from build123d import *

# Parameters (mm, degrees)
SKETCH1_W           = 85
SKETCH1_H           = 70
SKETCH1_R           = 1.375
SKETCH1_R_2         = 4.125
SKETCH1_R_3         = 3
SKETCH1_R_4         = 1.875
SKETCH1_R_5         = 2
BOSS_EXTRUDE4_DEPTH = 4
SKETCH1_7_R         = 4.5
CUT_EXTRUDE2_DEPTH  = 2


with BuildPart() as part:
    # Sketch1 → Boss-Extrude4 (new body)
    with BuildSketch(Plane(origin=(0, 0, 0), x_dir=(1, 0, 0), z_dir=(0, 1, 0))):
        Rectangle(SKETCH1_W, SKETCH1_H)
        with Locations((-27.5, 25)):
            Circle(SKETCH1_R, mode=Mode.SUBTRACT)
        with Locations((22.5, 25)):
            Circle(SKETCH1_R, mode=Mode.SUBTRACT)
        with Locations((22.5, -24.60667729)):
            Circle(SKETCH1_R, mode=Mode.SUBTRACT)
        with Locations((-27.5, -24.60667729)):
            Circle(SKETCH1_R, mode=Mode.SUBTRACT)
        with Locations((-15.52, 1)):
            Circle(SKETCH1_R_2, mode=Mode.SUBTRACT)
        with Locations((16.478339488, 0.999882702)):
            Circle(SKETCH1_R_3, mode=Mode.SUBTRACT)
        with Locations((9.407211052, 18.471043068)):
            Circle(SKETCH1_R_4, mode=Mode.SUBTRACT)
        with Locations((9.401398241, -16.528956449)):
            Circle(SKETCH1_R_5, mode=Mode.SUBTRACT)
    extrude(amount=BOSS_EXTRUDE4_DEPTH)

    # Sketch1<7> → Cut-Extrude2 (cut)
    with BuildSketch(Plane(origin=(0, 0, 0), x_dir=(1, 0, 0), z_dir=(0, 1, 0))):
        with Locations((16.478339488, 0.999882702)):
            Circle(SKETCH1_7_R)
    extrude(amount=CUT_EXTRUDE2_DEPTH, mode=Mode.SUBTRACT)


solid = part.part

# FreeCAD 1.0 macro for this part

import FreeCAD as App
import Part
import Sketcher
Q = App.Units.Quantity


def add_polygon(sketch, points):
    """Adds a closed chain of lines whose ends are joined by coincident constraints."""
    first, n = sketch.GeometryCount, len(points)
    for a, b in zip(points, points[1:] + points[:1]):
        sketch.addGeometry(Part.LineSegment(App.Vector(*a, 0), App.Vector(*b, 0)), False)
    for i in range(n):
        sketch.addConstraint(Sketcher.Constraint("Coincident", first + i, 2, first + (i + 1) % n, 1))

doc = App.newDocument("Part")
params = doc.addObject("Spreadsheet::Sheet", "Params")
for row, (alias, value) in enumerate([
    ("sketch1_diameter", "4 mm"),
    ("sketch1_diameter2", "6 mm"),
    ("sketch1_diameter3", "2.75 mm"),
    ("sketch1_diameter4", "8.25 mm"),
    ("sketch1_diameter5", "3.75 mm"),
    ("pad1_length", "4 mm"),
    ("sketch2_diameter", "9 mm"),
    ("pocket1_length", "2 mm"),
], start=1):
    params.set(f"A{row}", alias)
    params.set(f"B{row}", "=" + value)
    params.setAlias(f"B{row}", alias)

body = doc.addObject("PartDesign::Body", "Body")

sketch1 = body.newObject("Sketcher::SketchObject", "Sketch")
sketch1.AttachmentSupport = (doc.getObject("XZ_Plane"), [""])
sketch1.MapMode = "FlatFace"
add_polygon(sketch1, [(-42.5, -35), (-42.5, 35), (42.5, 35), (42.5, -35)])
sketch1.addGeometry(Part.Circle(App.Vector(-27.5, 24.6, 0), App.Vector(0, 0, 1), 1.4), False)
sketch1.addGeometry(Part.Circle(App.Vector(9.4, 16.5, 0), App.Vector(0, 0, 1), 2), False)
sketch1.addGeometry(Part.Circle(App.Vector(22.5, 24.6, 0), App.Vector(0, 0, 1), 1.4), False)
sketch1.addGeometry(Part.Circle(App.Vector(-15.5, -1, 0), App.Vector(0, 0, 1), 4.1), False)
sketch1.addGeometry(Part.Circle(App.Vector(-27.5, -25, 0), App.Vector(0, 0, 1), 1.4), False)
sketch1.addGeometry(Part.Circle(App.Vector(16.5, -1, 0), App.Vector(0, 0, 1), 3), False)
sketch1.addGeometry(Part.Circle(App.Vector(9.4, -18.5, 0), App.Vector(0, 0, 1), 1.9), False)
sketch1.addGeometry(Part.Circle(App.Vector(22.5, -25, 0), App.Vector(0, 0, 1), 1.4), False)
sketch1.addConstraint([
    Sketcher.Constraint("Vertical", 0),
    Sketcher.Constraint("Horizontal", 1),
    Sketcher.Constraint("Vertical", 2),
    Sketcher.Constraint("Horizontal", 3),
    Sketcher.Constraint("Equal", 4, 6),
    Sketcher.Constraint("Equal", 6, 8),
    Sketcher.Constraint("Equal", 8, 11),
    Sketcher.Constraint("Symmetric", 0, 2, 2, 2, -1, 1),
    Sketcher.Constraint("Horizontal", 4, 3, 6, 3),
    Sketcher.Constraint("Horizontal", 8, 3, 11, 3),
    Sketcher.Constraint("Vertical", 4, 3, 8, 3),
    Sketcher.Constraint("Vertical", 6, 3, 11, 3),
    Sketcher.Constraint("Diameter", 5, Q("4 mm")),
    Sketcher.Constraint("Diameter", 9, Q("6 mm")),
    Sketcher.Constraint("Diameter", 4, Q("2.75 mm")),
    Sketcher.Constraint("Diameter", 7, Q("8.25 mm")),
    Sketcher.Constraint("Diameter", 10, Q("3.75 mm")),
    Sketcher.Constraint("DistanceX", 1, 1, 1, 2, Q("85 mm")),
    Sketcher.Constraint("DistanceY", 0, 1, 0, 2, Q("70 mm")),
    Sketcher.Constraint("DistanceY", 7, 3, -1, 1, Q("1 mm")),
    Sketcher.Constraint("DistanceY", 8, 3, -1, 1, Q("25 mm")),
    Sketcher.Constraint("DistanceX", 4, 3, 6, 3, Q("50 mm")),
    Sketcher.Constraint("DistanceY", 10, 3, 5, 3, Q("35 mm")),
    Sketcher.Constraint("DistanceX", 0, 2, 4, 3, Q("15 mm")),
    Sketcher.Constraint("DistanceX", 7, 3, -1, 1, Q("15.52 mm")),
    Sketcher.Constraint("DistanceX", -1, 1, 5, 3, Q("9.401398 mm")),
    Sketcher.Constraint("DistanceX", -1, 1, 9, 3, Q("16.478339 mm")),
    Sketcher.Constraint("DistanceX", -1, 1, 10, 3, Q("9.407211 mm")),
    Sketcher.Constraint("DistanceY", 5, 3, 4, 3, Q("8.077721 mm")),
    Sketcher.Constraint("DistanceY", 9, 3, 5, 3, Q("17.528839 mm")),
    Sketcher.Constraint("DistanceY", -1, 1, 4, 3, Q("24.606677 mm")),
])
sketch1.setExpression("Constraints[16]", "Params.sketch1_diameter")
sketch1.setExpression("Constraints[17]", "Params.sketch1_diameter2")
sketch1.setExpression("Constraints[18]", "Params.sketch1_diameter3")
sketch1.setExpression("Constraints[19]", "Params.sketch1_diameter4")
sketch1.setExpression("Constraints[20]", "Params.sketch1_diameter5")
pad1 = body.newObject("PartDesign::Pad", "Pad")
pad1.Profile = sketch1
pad1.setExpression("Length", "Params.pad1_length")
pad1.Reversed = True

sketch2 = body.newObject("Sketcher::SketchObject", "Sketch001")
sketch2.AttachmentSupport = (doc.getObject("XZ_Plane"), [""])
sketch2.MapMode = "FlatFace"
sketch2.addGeometry(Part.Circle(App.Vector(16.5, -1, 0), App.Vector(0, 0, 1), 4.5), False)
sketch2.addConstraint([
    Sketcher.Constraint("Diameter", 0, Q("9 mm")),
    Sketcher.Constraint("DistanceX", -1, 1, 0, 3, Q("16.478339 mm")),
    Sketcher.Constraint("DistanceY", 0, 3, -1, 1, Q("0.999883 mm")),
])
sketch2.setExpression("Constraints[0]", "Params.sketch2_diameter")
pocket1 = body.newObject("PartDesign::Pocket", "Pocket")
pocket1.Profile = sketch2
pocket1.setExpression("Length", "Params.pocket1_length")

doc.recompute()
